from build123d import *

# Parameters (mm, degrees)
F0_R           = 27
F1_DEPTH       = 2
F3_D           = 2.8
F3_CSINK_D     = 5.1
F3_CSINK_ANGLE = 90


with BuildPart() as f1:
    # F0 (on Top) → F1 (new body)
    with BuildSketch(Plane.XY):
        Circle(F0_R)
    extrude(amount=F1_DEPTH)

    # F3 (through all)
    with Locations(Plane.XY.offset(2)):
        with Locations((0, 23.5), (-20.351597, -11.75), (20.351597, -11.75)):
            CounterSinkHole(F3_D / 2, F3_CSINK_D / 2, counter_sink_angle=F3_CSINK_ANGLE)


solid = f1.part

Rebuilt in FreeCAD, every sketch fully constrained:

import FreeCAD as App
import Part
import Sketcher

doc = App.newDocument("Part")
body = doc.addObject("PartDesign::Body", "Body")

# Sketch on XY plane
sketch1 = body.newObject("Sketcher::SketchObject", "Sketch")
sketch1.AttachmentSupport = (doc.getObject("XY_Plane"), [""])
sketch1.MapMode = "FlatFace"
sketch1.addGeometry(Part.Circle(App.Vector(0, 0, 0), App.Vector(0, 0, 1), 27), False)
sketch1.addConstraint([
    Sketcher.Constraint("Coincident", 0, 3, -1, 1),
    Sketcher.Constraint("Diameter", 0, 54.0),
])
pad1 = body.newObject("PartDesign::Pad", "Pad")
pad1.Profile = sketch1
pad1.Length = 2

# Sketch on XY plane
sketch2 = body.newObject("Sketcher::SketchObject", "Sketch001")
sketch2.AttachmentSupport = (doc.getObject("XY_Plane"), [""])
sketch2.MapMode = "FlatFace"
sketch2.AttachmentOffset = App.Placement(App.Vector(0, 0, 2), App.Rotation())
sketch2.addGeometry([
    Part.Circle(App.Vector(0, 23.5, 0), App.Vector(0, 0, 1), 1.4),
    Part.Circle(App.Vector(-20.4, -11.8, 0), App.Vector(0, 0, 1), 1.4),
    Part.Circle(App.Vector(20.4, -11.8, 0), App.Vector(0, 0, 1), 1.4),
], False)
sketch2.addConstraint([
    Sketcher.Constraint("Equal", 0, 1),
    Sketcher.Constraint("Equal", 1, 2),
    Sketcher.Constraint("Symmetric", 1, 3, 2, 3, -2),
    Sketcher.Constraint("PointOnObject", 0, 3, -2),
    Sketcher.Constraint("Diameter", 0, 2.8),
    Sketcher.Constraint("DistanceY", -1, 1, 0, 3, 23.5),
    Sketcher.Constraint("DistanceY", 1, 3, -1, 1, 11.75),
    Sketcher.Constraint("DistanceX", 1, 3, -1, 1, 20.351597),
])
doc.recompute()
hole = body.newObject("PartDesign::Hole", "Hole")
hole.Profile = sketch2
hole.ThreadType = "None"
hole.Diameter = 2.8
hole.DepthType = "ThroughAll"
hole.HoleCutType = "Countersink"
hole.HoleCutDiameter = 5.1
hole.HoleCutCountersinkAngle = 90

doc.recompute()
